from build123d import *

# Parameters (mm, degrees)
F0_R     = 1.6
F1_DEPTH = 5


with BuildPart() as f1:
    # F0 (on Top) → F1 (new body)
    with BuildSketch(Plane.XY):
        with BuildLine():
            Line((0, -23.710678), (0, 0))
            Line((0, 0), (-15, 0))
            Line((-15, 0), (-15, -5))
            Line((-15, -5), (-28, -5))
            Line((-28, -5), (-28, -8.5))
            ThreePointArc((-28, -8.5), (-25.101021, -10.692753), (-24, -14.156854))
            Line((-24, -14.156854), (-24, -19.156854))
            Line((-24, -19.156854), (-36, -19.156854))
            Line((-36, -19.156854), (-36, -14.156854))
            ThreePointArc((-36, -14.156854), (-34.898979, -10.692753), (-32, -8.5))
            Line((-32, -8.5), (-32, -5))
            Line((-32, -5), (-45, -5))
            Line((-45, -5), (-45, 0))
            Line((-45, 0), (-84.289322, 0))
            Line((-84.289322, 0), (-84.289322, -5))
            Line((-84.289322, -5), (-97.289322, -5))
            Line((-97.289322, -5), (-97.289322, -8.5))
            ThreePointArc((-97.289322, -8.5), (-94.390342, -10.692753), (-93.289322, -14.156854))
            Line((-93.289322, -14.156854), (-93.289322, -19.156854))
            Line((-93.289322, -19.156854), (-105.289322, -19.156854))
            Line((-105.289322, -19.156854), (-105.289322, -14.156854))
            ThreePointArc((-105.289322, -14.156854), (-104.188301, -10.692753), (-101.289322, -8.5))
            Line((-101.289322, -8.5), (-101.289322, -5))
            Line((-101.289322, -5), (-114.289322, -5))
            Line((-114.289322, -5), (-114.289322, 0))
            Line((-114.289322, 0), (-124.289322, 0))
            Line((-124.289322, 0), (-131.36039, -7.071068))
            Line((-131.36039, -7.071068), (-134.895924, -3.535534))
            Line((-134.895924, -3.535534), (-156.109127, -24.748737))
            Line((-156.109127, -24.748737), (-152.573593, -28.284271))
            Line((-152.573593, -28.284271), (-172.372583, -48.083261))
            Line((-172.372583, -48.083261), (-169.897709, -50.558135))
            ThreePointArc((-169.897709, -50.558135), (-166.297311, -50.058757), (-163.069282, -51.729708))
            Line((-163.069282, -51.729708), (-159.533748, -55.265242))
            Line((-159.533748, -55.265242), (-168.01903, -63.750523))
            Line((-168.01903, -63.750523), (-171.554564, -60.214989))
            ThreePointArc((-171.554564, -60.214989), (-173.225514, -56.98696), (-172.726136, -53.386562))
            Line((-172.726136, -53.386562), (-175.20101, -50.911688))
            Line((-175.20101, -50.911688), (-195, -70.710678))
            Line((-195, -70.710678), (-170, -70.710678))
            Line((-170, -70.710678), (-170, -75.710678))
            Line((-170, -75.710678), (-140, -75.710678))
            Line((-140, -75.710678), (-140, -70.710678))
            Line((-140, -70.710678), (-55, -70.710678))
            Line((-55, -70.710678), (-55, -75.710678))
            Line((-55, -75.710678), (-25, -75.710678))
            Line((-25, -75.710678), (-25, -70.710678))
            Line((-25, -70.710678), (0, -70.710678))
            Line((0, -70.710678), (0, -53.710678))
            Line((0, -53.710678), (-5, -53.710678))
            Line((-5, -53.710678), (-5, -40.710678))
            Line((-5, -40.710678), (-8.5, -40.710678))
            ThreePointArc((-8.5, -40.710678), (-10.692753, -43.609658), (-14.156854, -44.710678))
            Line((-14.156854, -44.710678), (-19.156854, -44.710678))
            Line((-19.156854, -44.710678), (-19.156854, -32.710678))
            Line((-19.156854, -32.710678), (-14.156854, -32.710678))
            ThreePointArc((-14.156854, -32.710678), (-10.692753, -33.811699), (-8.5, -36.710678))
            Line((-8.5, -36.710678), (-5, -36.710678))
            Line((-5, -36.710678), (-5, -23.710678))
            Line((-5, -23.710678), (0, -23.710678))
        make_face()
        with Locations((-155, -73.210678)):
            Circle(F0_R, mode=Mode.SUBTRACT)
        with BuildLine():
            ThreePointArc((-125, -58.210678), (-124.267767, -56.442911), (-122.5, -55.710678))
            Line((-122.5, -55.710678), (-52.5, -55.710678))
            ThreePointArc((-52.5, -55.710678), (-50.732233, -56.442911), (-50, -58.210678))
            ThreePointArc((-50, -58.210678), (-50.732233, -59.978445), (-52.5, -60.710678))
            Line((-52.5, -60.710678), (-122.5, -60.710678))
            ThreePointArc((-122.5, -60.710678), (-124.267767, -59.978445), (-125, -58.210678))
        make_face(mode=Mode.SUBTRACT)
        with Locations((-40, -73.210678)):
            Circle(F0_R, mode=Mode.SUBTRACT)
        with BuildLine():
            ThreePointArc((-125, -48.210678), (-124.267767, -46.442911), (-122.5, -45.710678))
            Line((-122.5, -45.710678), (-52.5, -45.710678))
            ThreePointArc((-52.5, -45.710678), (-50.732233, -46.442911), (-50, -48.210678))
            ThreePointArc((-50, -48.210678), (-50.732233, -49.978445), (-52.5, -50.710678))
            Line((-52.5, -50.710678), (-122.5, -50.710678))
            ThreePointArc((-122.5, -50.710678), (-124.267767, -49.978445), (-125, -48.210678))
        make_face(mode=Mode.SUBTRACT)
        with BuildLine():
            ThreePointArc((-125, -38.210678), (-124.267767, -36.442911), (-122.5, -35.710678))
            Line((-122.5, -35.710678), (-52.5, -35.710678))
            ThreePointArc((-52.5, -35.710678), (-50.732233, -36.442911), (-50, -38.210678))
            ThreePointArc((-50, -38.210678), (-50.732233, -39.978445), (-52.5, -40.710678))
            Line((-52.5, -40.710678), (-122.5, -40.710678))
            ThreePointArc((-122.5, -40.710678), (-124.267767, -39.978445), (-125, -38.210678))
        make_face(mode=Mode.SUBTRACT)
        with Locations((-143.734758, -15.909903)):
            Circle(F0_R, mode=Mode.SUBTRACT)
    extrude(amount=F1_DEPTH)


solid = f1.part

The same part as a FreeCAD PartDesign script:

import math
import FreeCAD as App
import Part
import Sketcher

V = App.Vector
Q = App.Units.Quantity

doc = App.newDocument("Part")
body = doc.addObject("PartDesign::Body", "Body")

# Sketch on XY plane
sketch1 = doc.addObject("Sketcher::SketchObject", "Sketch")
body.addObject(sketch1)
sketch1.AttachmentSupport = (doc.XY_Plane, [""])
sketch1.MapMode = "FlatFace"
sketch1.addGeometry([
    Part.LineSegment(V(0, -23.7, 0), V(0, 0, 0)),  # 0
    Part.LineSegment(V(0, 0, 0), V(-15, 0, 0)),  # 1
    Part.LineSegment(V(-15, 0, 0), V(-15, -5, 0)),  # 2
    Part.LineSegment(V(-15, -5, 0), V(-28, -5, 0)),  # 3
    Part.LineSegment(V(-28, -5, 0), V(-28, -8.5, 0)),  # 4
    Part.ArcOfCircle(Part.Circle(V(-30, -14.2, 0), V(0, 0, 1), 6), math.radians(0), math.radians(71)),  # 5
    Part.LineSegment(V(-24, -14.2, 0), V(-24, -19.2, 0)),  # 6
    Part.LineSegment(V(-24, -19.2, 0), V(-36, -19.2, 0)),  # 7
    Part.LineSegment(V(-36, -19.2, 0), V(-36, -14.2, 0)),  # 8
    Part.ArcOfCircle(Part.Circle(V(-30, -14.2, 0), V(0, 0, 1), 6), math.radians(109), math.radians(180)),  # 9
    Part.LineSegment(V(-32, -8.5, 0), V(-32, -5, 0)),  # 10
    Part.LineSegment(V(-32, -5, 0), V(-45, -5, 0)),  # 11
    Part.LineSegment(V(-45, -5, 0), V(-45, 0, 0)),  # 12
    Part.LineSegment(V(-45, 0, 0), V(-84.3, 0, 0)),  # 13
    Part.LineSegment(V(-84.3, 0, 0), V(-84.3, -5, 0)),  # 14
    Part.LineSegment(V(-84.3, -5, 0), V(-97.3, -5, 0)),  # 15
    Part.LineSegment(V(-97.3, -5, 0), V(-97.3, -8.5, 0)),  # 16
    Part.ArcOfCircle(Part.Circle(V(-99.3, -14.2, 0), V(0, 0, 1), 6), math.radians(0), math.radians(71)),  # 17
    Part.LineSegment(V(-93.3, -14.2, 0), V(-93.3, -19.2, 0)),  # 18
    Part.LineSegment(V(-93.3, -19.2, 0), V(-105.3, -19.2, 0)),  # 19
    Part.LineSegment(V(-105.3, -19.2, 0), V(-105.3, -14.2, 0)),  # 20
    Part.ArcOfCircle(Part.Circle(V(-99.3, -14.2, 0), V(0, 0, 1), 6), math.radians(109), math.radians(180)),  # 21
    Part.LineSegment(V(-101.3, -8.5, 0), V(-101.3, -5, 0)),  # 22
    Part.LineSegment(V(-101.3, -5, 0), V(-114.3, -5, 0)),  # 23
    Part.LineSegment(V(-114.3, -5, 0), V(-114.3, 0, 0)),  # 24
    Part.LineSegment(V(-114.3, 0, 0), V(-124.3, 0, 0)),  # 25
    Part.LineSegment(V(-124.3, 0, 0), V(-131.4, -7.1, 0)),  # 26
    Part.LineSegment(V(-131.4, -7.1, 0), V(-134.9, -3.5, 0)),  # 27
    Part.LineSegment(V(-134.9, -3.5, 0), V(-156.1, -24.7, 0)),  # 28
    Part.LineSegment(V(-156.1, -24.7, 0), V(-152.6, -28.3, 0)),  # 29
    Part.LineSegment(V(-152.6, -28.3, 0), V(-172.4, -48.1, 0)),  # 30
    Part.LineSegment(V(-172.4, -48.1, 0), V(-169.9, -50.6, 0)),  # 31
    Part.ArcOfCircle(Part.Circle(V(-167.3, -56, 0), V(0, 0, 1), 6), math.radians(45), math.radians(116)),  # 32
    Part.LineSegment(V(-163.1, -51.7, 0), V(-159.5, -55.3, 0)),  # 33
    Part.LineSegment(V(-159.5, -55.3, 0), V(-168, -63.8, 0)),  # 34
    Part.LineSegment(V(-168, -63.8, 0), V(-171.6, -60.2, 0)),  # 35
    Part.ArcOfCircle(Part.Circle(V(-167.3, -56, 0), V(0, 0, 1), 6), math.radians(154), math.radians(225)),  # 36
    Part.LineSegment(V(-172.7, -53.4, 0), V(-175.2, -50.9, 0)),  # 37
    Part.LineSegment(V(-175.2, -50.9, 0), V(-195, -70.7, 0)),  # 38
    Part.LineSegment(V(-195, -70.7, 0), V(-170, -70.7, 0)),  # 39
    Part.LineSegment(V(-170, -70.7, 0), V(-170, -75.7, 0)),  # 40
    Part.LineSegment(V(-170, -75.7, 0), V(-140, -75.7, 0)),  # 41
    Part.LineSegment(V(-140, -75.7, 0), V(-140, -70.7, 0)),  # 42
    Part.LineSegment(V(-140, -70.7, 0), V(-55, -70.7, 0)),  # 43
    Part.LineSegment(V(-55, -70.7, 0), V(-55, -75.7, 0)),  # 44
    Part.LineSegment(V(-55, -75.7, 0), V(-25, -75.7, 0)),  # 45
    Part.LineSegment(V(-25, -75.7, 0), V(-25, -70.7, 0)),  # 46
    Part.LineSegment(V(-25, -70.7, 0), V(0, -70.7, 0)),  # 47
    Part.LineSegment(V(0, -70.7, 0), V(0, -53.7, 0)),  # 48
    Part.LineSegment(V(0, -53.7, 0), V(-5, -53.7, 0)),  # 49
    Part.LineSegment(V(-5, -53.7, 0), V(-5, -40.7, 0)),  # 50
    Part.LineSegment(V(-5, -40.7, 0), V(-8.5, -40.7, 0)),  # 51
    Part.ArcOfCircle(Part.Circle(V(-14.2, -38.7, 0), V(0, 0, 1), 6), math.radians(-90), math.radians(-19)),  # 52
    Part.LineSegment(V(-14.2, -44.7, 0), V(-19.2, -44.7, 0)),  # 53
    Part.LineSegment(V(-19.2, -44.7, 0), V(-19.2, -32.7, 0)),  # 54
    Part.LineSegment(V(-19.2, -32.7, 0), V(-14.2, -32.7, 0)),  # 55
    Part.ArcOfCircle(Part.Circle(V(-14.2, -38.7, 0), V(0, 0, 1), 6), math.radians(19), math.radians(90)),  # 56
    Part.LineSegment(V(-8.5, -36.7, 0), V(-5, -36.7, 0)),  # 57
    Part.LineSegment(V(-5, -36.7, 0), V(-5, -23.7, 0)),  # 58
    Part.LineSegment(V(-5, -23.7, 0), V(0, -23.7, 0)),  # 59
    Part.Circle(V(-155, -73.2, 0), V(0, 0, 1), 1.6),  # 60
    Part.Circle(V(-40, -73.2, 0), V(0, 0, 1), 1.6),  # 61
    Part.ArcOfCircle(Part.Circle(V(-122.5, -58.2, 0), V(0, 0, 1), 2.5), math.radians(180), math.radians(270)),  # 62
    Part.ArcOfCircle(Part.Circle(V(-122.5, -58.2, 0), V(0, 0, 1), 2.5), math.radians(90), math.radians(180)),  # 63
    Part.LineSegment(V(-122.5, -55.7, 0), V(-52.5, -55.7, 0)),  # 64
    Part.ArcOfCircle(Part.Circle(V(-52.5, -58.2, 0), V(0, 0, 1), 2.5), math.radians(0), math.radians(90)),  # 65
    Part.ArcOfCircle(Part.Circle(V(-52.5, -58.2, 0), V(0, 0, 1), 2.5), math.radians(-90), math.radians(0)),  # 66
    Part.LineSegment(V(-52.5, -60.7, 0), V(-122.5, -60.7, 0)),  # 67
    Part.ArcOfCircle(Part.Circle(V(-122.5, -48.2, 0), V(0, 0, 1), 2.5), math.radians(180), math.radians(270)),  # 68
    Part.ArcOfCircle(Part.Circle(V(-122.5, -48.2, 0), V(0, 0, 1), 2.5), math.radians(90), math.radians(180)),  # 69
    Part.LineSegment(V(-122.5, -45.7, 0), V(-52.5, -45.7, 0)),  # 70
    Part.ArcOfCircle(Part.Circle(V(-52.5, -48.2, 0), V(0, 0, 1), 2.5), math.radians(0), math.radians(90)),  # 71
    Part.ArcOfCircle(Part.Circle(V(-52.5, -48.2, 0), V(0, 0, 1), 2.5), math.radians(-90), math.radians(0)),  # 72
    Part.LineSegment(V(-52.5, -50.7, 0), V(-122.5, -50.7, 0)),  # 73
    Part.Circle(V(-143.7, -15.9, 0), V(0, 0, 1), 1.6),  # 74
    Part.ArcOfCircle(Part.Circle(V(-122.5, -38.2, 0), V(0, 0, 1), 2.5), math.radians(180), math.radians(270)),  # 75
    Part.ArcOfCircle(Part.Circle(V(-122.5, -38.2, 0), V(0, 0, 1), 2.5), math.radians(90), math.radians(180)),  # 76
    Part.LineSegment(V(-122.5, -35.7, 0), V(-52.5, -35.7, 0)),  # 77
    Part.ArcOfCircle(Part.Circle(V(-52.5, -38.2, 0), V(0, 0, 1), 2.5), math.radians(0), math.radians(90)),  # 78
    Part.ArcOfCircle(Part.Circle(V(-52.5, -38.2, 0), V(0, 0, 1), 2.5), math.radians(-90), math.radians(0)),  # 79
    Part.LineSegment(V(-52.5, -40.7, 0), V(-122.5, -40.7, 0)),  # 80
], False)
sketch1.addConstraint([
    Sketcher.Constraint("Coincident", 0, 2, 1, 1),
    Sketcher.Constraint("Coincident", 1, 2, 2, 1),
    Sketcher.Constraint("Coincident", 2, 2, 3, 1),
    Sketcher.Constraint("Coincident", 3, 2, 4, 1),
    Sketcher.Constraint("Coincident", 4, 2, 5, 2),
    Sketcher.Constraint("Tangent", 5, 1, 6, 1),
    Sketcher.Constraint("Coincident", 6, 2, 7, 1),
    Sketcher.Constraint("Coincident", 7, 2, 8, 1),
    Sketcher.Constraint("Tangent", 8, 2, 9, 2),
    Sketcher.Constraint("Coincident", 9, 1, 10, 1),
    Sketcher.Constraint("Coincident", 10, 2, 11, 1),
    Sketcher.Constraint("Coincident", 11, 2, 12, 1),
    Sketcher.Constraint("Coincident", 12, 2, 13, 1),
    Sketcher.Constraint("Coincident", 13, 2, 14, 1),
    Sketcher.Constraint("Coincident", 14, 2, 15, 1),
    Sketcher.Constraint("Coincident", 15, 2, 16, 1),
    Sketcher.Constraint("Coincident", 16, 2, 17, 2),
    Sketcher.Constraint("Tangent", 17, 1, 18, 1),
    Sketcher.Constraint("Coincident", 18, 2, 19, 1),
    Sketcher.Constraint("Coincident", 19, 2, 20, 1),
    Sketcher.Constraint("Tangent", 20, 2, 21, 2),
    Sketcher.Constraint("Coincident", 21, 1, 22, 1),
    Sketcher.Constraint("Coincident", 22, 2, 23, 1),
    Sketcher.Constraint("Coincident", 23, 2, 24, 1),
    Sketcher.Constraint("Coincident", 24, 2, 25, 1),
    Sketcher.Constraint("Coincident", 25, 2, 26, 1),
    Sketcher.Constraint("Coincident", 26, 2, 27, 1),
    Sketcher.Constraint("Coincident", 27, 2, 28, 1),
    Sketcher.Constraint("Coincident", 28, 2, 29, 1),
    Sketcher.Constraint("Coincident", 29, 2, 30, 1),
    Sketcher.Constraint("Coincident", 30, 2, 31, 1),
    Sketcher.Constraint("Coincident", 31, 2, 32, 2),
    Sketcher.Constraint("Tangent", 32, 1, 33, 1),
    Sketcher.Constraint("Coincident", 33, 2, 34, 1),
    Sketcher.Constraint("Coincident", 34, 2, 35, 1),
    Sketcher.Constraint("Tangent", 35, 2, 36, 2),
    Sketcher.Constraint("Coincident", 36, 1, 37, 1),
    Sketcher.Constraint("Coincident", 37, 2, 38, 1),
    Sketcher.Constraint("Coincident", 38, 2, 39, 1),
    Sketcher.Constraint("Coincident", 39, 2, 40, 1),
    Sketcher.Constraint("Coincident", 40, 2, 41, 1),
    Sketcher.Constraint("Coincident", 41, 2, 42, 1),
    Sketcher.Constraint("Coincident", 42, 2, 43, 1),
    Sketcher.Constraint("Coincident", 43, 2, 44, 1),
    Sketcher.Constraint("Coincident", 44, 2, 45, 1),
    Sketcher.Constraint("Coincident", 45, 2, 46, 1),
    Sketcher.Constraint("Coincident", 46, 2, 47, 1),
    Sketcher.Constraint("Coincident", 47, 2, 48, 1),
    Sketcher.Constraint("Coincident", 48, 2, 49, 1),
    Sketcher.Constraint("Coincident", 49, 2, 50, 1),
    Sketcher.Constraint("Coincident", 50, 2, 51, 1),
    Sketcher.Constraint("Coincident", 51, 2, 52, 2),
    Sketcher.Constraint("Tangent", 52, 1, 53, 1),
    Sketcher.Constraint("Coincident", 53, 2, 54, 1),
    Sketcher.Constraint("Coincident", 54, 2, 55, 1),
    Sketcher.Constraint("Tangent", 55, 2, 56, 2),
    Sketcher.Constraint("Coincident", 56, 1, 57, 1),
    Sketcher.Constraint("Coincident", 57, 2, 58, 1),
    Sketcher.Constraint("Coincident", 58, 2, 59, 1),
    Sketcher.Constraint("Coincident", 59, 2, 0, 1),
    Sketcher.Constraint("Tangent", 62, 1, 63, 2),
    Sketcher.Constraint("Tangent", 63, 1, 64, 1),
    Sketcher.Constraint("Tangent", 64, 2, 65, 2),
    Sketcher.Constraint("Tangent", 65, 1, 66, 2),
    Sketcher.Constraint("Tangent", 66, 1, 67, 1),
    Sketcher.Constraint("Tangent", 67, 2, 62, 2),
    Sketcher.Constraint("Tangent", 68, 1, 69, 2),
    Sketcher.Constraint("Tangent", 69, 1, 70, 1),
    Sketcher.Constraint("Tangent", 70, 2, 71, 2),
    Sketcher.Constraint("Tangent", 71, 1, 72, 2),
    Sketcher.Constraint("Tangent", 72, 1, 73, 1),
    Sketcher.Constraint("Tangent", 73, 2, 68, 2),
    Sketcher.Constraint("Tangent", 75, 1, 76, 2),
    Sketcher.Constraint("Tangent", 76, 1, 77, 1),
    Sketcher.Constraint("Tangent", 77, 2, 78, 2),
    Sketcher.Constraint("Tangent", 78, 1, 79, 2),
    Sketcher.Constraint("Tangent", 79, 1, 80, 1),
    Sketcher.Constraint("Tangent", 80, 2, 75, 2),
    Sketcher.Constraint("Vertical", 0),
    Sketcher.Constraint("Horizontal", 1),
    Sketcher.Constraint("Vertical", 2),
    Sketcher.Constraint("Horizontal", 3),
    Sketcher.Constraint("Vertical", 4),
    Sketcher.Constraint("Vertical", 6),
    Sketcher.Constraint("Horizontal", 7),
    Sketcher.Constraint("Vertical", 8),
    Sketcher.Constraint("Vertical", 10),
    Sketcher.Constraint("Horizontal", 11),
    Sketcher.Constraint("Vertical", 12),
    Sketcher.Constraint("Horizontal", 13),
    Sketcher.Constraint("Vertical", 14),
    Sketcher.Constraint("Horizontal", 15),
    Sketcher.Constraint("Vertical", 16),
    Sketcher.Constraint("Vertical", 18),
    Sketcher.Constraint("Horizontal", 19),
    Sketcher.Constraint("Vertical", 20),
    Sketcher.Constraint("Vertical", 22),
    Sketcher.Constraint("Horizontal", 23),
    Sketcher.Constraint("Vertical", 24),
    Sketcher.Constraint("Horizontal", 25),
    Sketcher.Constraint("Horizontal", 39),
    Sketcher.Constraint("Vertical", 40),
    Sketcher.Constraint("Horizontal", 41),
    Sketcher.Constraint("Vertical", 42),
    Sketcher.Constraint("Horizontal", 43),
    Sketcher.Constraint("Vertical", 44),
    Sketcher.Constraint("Horizontal", 45),
    Sketcher.Constraint("Vertical", 46),
    Sketcher.Constraint("Horizontal", 47),
    Sketcher.Constraint("Vertical", 48),
    Sketcher.Constraint("Horizontal", 49),
    Sketcher.Constraint("Vertical", 50),
    Sketcher.Constraint("Horizontal", 51),
    Sketcher.Constraint("Horizontal", 53),
    Sketcher.Constraint("Vertical", 54),
    Sketcher.Constraint("Horizontal", 55),
    Sketcher.Constraint("Horizontal", 57),
    Sketcher.Constraint("Vertical", 58),
    Sketcher.Constraint("Horizontal", 59),
    Sketcher.Constraint("Horizontal", 64),
    Sketcher.Constraint("Horizontal", 67),
    Sketcher.Constraint("Horizontal", 70),
    Sketcher.Constraint("Horizontal", 73),
    Sketcher.Constraint("Horizontal", 77),
    Sketcher.Constraint("Horizontal", 80),
    Sketcher.Constraint("Coincident", 0, 2, -1, 1),
    Sketcher.Constraint("Coincident", 9, 3, 5, 3),
    Sketcher.Constraint("Coincident", 21, 3, 17, 3),
    Sketcher.Constraint("Coincident", 36, 3, 32, 3),
    Sketcher.Constraint("Coincident", 56, 3, 52, 3),
    Sketcher.Constraint("Equal", 5, 9),
    Sketcher.Constraint("Equal", 9, 21),
    Sketcher.Constraint("Equal", 17, 32),
    Sketcher.Constraint("Equal", 32, 36),
    Sketcher.Constraint("Equal", 36, 52),
    Sketcher.Constraint("Equal", 36, 56),
    Sketcher.Constraint("Equal", 60, 61),
    Sketcher.Constraint("Equal", 62, 63),
    Sketcher.Constraint("Equal", 63, 65),
    Sketcher.Constraint("Equal", 66, 68),
    Sketcher.Constraint("Equal", 68, 69),
    Sketcher.Constraint("Equal", 69, 71),
    Sketcher.Constraint("Equal", 61, 74),
    Sketcher.Constraint("Equal", 72, 75),
    Sketcher.Constraint("Equal", 75, 76),
    Sketcher.Constraint("Equal", 76, 78),
    Sketcher.Constraint("PointOnObject", 12, 2, -1),
    Sketcher.Constraint("PointOnObject", 24, 2, -1),
    Sketcher.Constraint("PointOnObject", 47, 2, -2),
    Sketcher.Constraint("Perpendicular", 26, 27),
    Sketcher.Constraint("Perpendicular", 27, 28),
    Sketcher.Constraint("Perpendicular", 28, 29),
    Sketcher.Constraint("Perpendicular", 29, 30),
    Sketcher.Constraint("Perpendicular", 30, 31),
    Sketcher.Constraint("Parallel", 31, 33),
    Sketcher.Constraint("Perpendicular", 33, 34),
    Sketcher.Constraint("Perpendicular", 34, 35),
    Sketcher.Constraint("Parallel", 35, 37),
    Sketcher.Constraint("Perpendicular", 37, 38),
    Sketcher.Constraint("Horizontal", 9, 3, 21, 3),
    Sketcher.Constraint("Horizontal", 60, 3, 61, 3),
    Sketcher.Constraint("Horizontal", 4, 2, 9, 1),
    Sketcher.Constraint("Horizontal", 3, 2, 10, 2),
    Sketcher.Constraint("Horizontal", 11, 2, 14, 2),
    Sketcher.Constraint("Horizontal", 9, 1, 16, 2),
    Sketcher.Constraint("Horizontal", 7, 2, 18, 2),
    Sketcher.Constraint("Horizontal", 16, 2, 21, 1),
    Sketcher.Constraint("Horizontal", 15, 2, 22, 2),
    Sketcher.Constraint("Horizontal", 39, 2, 42, 2),
    Sketcher.Constraint("Horizontal", 41, 2, 44, 2),
    Sketcher.Constraint("Horizontal", 43, 2, 46, 2),
    Sketcher.Constraint("Horizontal", 66, 3, 62, 1),
    Sketcher.Constraint("Horizontal", 62, 1, 65, 1),
    Sketcher.Constraint("Horizontal", 72, 3, 68, 1),
    Sketcher.Constraint("Horizontal", 68, 1, 71, 1),
    Sketcher.Constraint("Horizontal", 79, 3, 75, 1),
    Sketcher.Constraint("Horizontal", 75, 1, 78, 1),
    Sketcher.Constraint("Horizontal", 51, 2, 79, 1),
    Sketcher.Constraint("Vertical", 63, 3, 68, 3),
    Sketcher.Constraint("Vertical", 66, 3, 71, 3),
    Sketcher.Constraint("Vertical", 69, 3, 75, 3),
    Sketcher.Constraint("Vertical", 72, 3, 78, 3),
    Sketcher.Constraint("Vertical", 51, 2, 56, 1),
    Sketcher.Constraint("Vertical", 50, 2, 57, 2),
    Sketcher.Constraint("Equal", 3, 11),
    Sketcher.Constraint("Equal", 11, 15),
    Sketcher.Constraint("Equal", 7, 19),
    Sketcher.Constraint("Equal", 15, 23),
    Sketcher.Constraint("Equal", 41, 45),
    Sketcher.Constraint("Equal", 39, 47),
    Sketcher.Constraint("Equal", 49, 53),
    Sketcher.Constraint("Equal", 59, 2),
    Sketcher.Constraint("Equal", 57, 4),
    Sketcher.Constraint("Equal", 2, 6),
    Sketcher.Constraint("Equal", 24, 40),
    Sketcher.Constraint("Equal", 23, 50),
    Sketcher.Constraint("Equal", 50, 58),
    Sketcher.Constraint("Equal", 27, 29),
    Sketcher.Constraint("Equal", 29, 33),
    Sketcher.Constraint("Equal", 31, 37),
    Sketcher.Constraint("Equal", 30, 38),
    Sketcher.Constraint("Radius", 17, 5.999999),
    Sketcher.Constraint("Diameter", 60, 3.2),
    Sketcher.Constraint("Radius", 62, 2.5),
    Sketcher.Constraint("DistanceX", 1, 2, 1, 1, 15.0),
    Sketcher.Constraint("DistanceX", 3, 2, 3, 1, 13.0),
    Sketcher.Constraint("DistanceX", 25, 2, 25, 1, 10.0),
    Sketcher.Constraint("DistanceX", 39, 1, 39, 2, 25.0),
    Sketcher.Constraint("DistanceX", 41, 1, 41, 2, 30.0),
    Sketcher.Constraint("DistanceX", 43, 1, 43, 2, 85.0),
    Sketcher.Constraint("DistanceX", 49, 2, 49, 1, 5.0),
    Sketcher.Constraint("DistanceX", 64, 1, 64, 2, 70.0),
    Sketcher.Constraint("DistanceY", 48, 1, 48, 2, 17.0),
    Sketcher.Constraint("Angle", 26, Q("-135 deg")),
    Sketcher.Constraint("Distance", 26, 10.0),
    Sketcher.Constraint("Distance", 27, 5.0),
    Sketcher.Constraint("Distance", 28, 29.999999),
    Sketcher.Constraint("Distance", 30, 28.0),
    Sketcher.Constraint("DistanceX", 51, 2, 51, 1, 3.5),
    Sketcher.Constraint("DistanceX", 60, 3, -1, 1, 155.0),
    Sketcher.Constraint("DistanceX", 61, 3, -1, 1, 40.0),
    Sketcher.Constraint("DistanceX", 5, 1, -1, 1, 24.0),
    Sketcher.Constraint("DistanceX", 62, 1, -1, 1, 125.0),
    Sketcher.Constraint("Distance", 31, 3.5),
    Sketcher.Constraint("DistanceY", 0, 1, 0, 2, 23.710678),
    Sketcher.Constraint("DistanceX", 13, 2, 13, 1, 39.289322),
    Sketcher.Constraint("DistanceX", 36, 3, -1, 1, 167.311922),
    Sketcher.Constraint("DistanceY", 60, 3, -1, 1, 73.210678),
    Sketcher.Constraint("DistanceY", 62, 3, -1, 1, 58.210678),
    Sketcher.Constraint("DistanceY", 68, 3, -1, 1, 48.210678),
    Sketcher.Constraint("DistanceX", 74, 3, -1, 1, 143.734758),
    Sketcher.Constraint("DistanceY", 74, 3, -1, 1, 15.909903),
])
pad1 = doc.addObject("PartDesign::Pad", "Pad")
body.addObject(pad1)
pad1.Profile = sketch1
pad1.Length = 5

doc.recompute()
